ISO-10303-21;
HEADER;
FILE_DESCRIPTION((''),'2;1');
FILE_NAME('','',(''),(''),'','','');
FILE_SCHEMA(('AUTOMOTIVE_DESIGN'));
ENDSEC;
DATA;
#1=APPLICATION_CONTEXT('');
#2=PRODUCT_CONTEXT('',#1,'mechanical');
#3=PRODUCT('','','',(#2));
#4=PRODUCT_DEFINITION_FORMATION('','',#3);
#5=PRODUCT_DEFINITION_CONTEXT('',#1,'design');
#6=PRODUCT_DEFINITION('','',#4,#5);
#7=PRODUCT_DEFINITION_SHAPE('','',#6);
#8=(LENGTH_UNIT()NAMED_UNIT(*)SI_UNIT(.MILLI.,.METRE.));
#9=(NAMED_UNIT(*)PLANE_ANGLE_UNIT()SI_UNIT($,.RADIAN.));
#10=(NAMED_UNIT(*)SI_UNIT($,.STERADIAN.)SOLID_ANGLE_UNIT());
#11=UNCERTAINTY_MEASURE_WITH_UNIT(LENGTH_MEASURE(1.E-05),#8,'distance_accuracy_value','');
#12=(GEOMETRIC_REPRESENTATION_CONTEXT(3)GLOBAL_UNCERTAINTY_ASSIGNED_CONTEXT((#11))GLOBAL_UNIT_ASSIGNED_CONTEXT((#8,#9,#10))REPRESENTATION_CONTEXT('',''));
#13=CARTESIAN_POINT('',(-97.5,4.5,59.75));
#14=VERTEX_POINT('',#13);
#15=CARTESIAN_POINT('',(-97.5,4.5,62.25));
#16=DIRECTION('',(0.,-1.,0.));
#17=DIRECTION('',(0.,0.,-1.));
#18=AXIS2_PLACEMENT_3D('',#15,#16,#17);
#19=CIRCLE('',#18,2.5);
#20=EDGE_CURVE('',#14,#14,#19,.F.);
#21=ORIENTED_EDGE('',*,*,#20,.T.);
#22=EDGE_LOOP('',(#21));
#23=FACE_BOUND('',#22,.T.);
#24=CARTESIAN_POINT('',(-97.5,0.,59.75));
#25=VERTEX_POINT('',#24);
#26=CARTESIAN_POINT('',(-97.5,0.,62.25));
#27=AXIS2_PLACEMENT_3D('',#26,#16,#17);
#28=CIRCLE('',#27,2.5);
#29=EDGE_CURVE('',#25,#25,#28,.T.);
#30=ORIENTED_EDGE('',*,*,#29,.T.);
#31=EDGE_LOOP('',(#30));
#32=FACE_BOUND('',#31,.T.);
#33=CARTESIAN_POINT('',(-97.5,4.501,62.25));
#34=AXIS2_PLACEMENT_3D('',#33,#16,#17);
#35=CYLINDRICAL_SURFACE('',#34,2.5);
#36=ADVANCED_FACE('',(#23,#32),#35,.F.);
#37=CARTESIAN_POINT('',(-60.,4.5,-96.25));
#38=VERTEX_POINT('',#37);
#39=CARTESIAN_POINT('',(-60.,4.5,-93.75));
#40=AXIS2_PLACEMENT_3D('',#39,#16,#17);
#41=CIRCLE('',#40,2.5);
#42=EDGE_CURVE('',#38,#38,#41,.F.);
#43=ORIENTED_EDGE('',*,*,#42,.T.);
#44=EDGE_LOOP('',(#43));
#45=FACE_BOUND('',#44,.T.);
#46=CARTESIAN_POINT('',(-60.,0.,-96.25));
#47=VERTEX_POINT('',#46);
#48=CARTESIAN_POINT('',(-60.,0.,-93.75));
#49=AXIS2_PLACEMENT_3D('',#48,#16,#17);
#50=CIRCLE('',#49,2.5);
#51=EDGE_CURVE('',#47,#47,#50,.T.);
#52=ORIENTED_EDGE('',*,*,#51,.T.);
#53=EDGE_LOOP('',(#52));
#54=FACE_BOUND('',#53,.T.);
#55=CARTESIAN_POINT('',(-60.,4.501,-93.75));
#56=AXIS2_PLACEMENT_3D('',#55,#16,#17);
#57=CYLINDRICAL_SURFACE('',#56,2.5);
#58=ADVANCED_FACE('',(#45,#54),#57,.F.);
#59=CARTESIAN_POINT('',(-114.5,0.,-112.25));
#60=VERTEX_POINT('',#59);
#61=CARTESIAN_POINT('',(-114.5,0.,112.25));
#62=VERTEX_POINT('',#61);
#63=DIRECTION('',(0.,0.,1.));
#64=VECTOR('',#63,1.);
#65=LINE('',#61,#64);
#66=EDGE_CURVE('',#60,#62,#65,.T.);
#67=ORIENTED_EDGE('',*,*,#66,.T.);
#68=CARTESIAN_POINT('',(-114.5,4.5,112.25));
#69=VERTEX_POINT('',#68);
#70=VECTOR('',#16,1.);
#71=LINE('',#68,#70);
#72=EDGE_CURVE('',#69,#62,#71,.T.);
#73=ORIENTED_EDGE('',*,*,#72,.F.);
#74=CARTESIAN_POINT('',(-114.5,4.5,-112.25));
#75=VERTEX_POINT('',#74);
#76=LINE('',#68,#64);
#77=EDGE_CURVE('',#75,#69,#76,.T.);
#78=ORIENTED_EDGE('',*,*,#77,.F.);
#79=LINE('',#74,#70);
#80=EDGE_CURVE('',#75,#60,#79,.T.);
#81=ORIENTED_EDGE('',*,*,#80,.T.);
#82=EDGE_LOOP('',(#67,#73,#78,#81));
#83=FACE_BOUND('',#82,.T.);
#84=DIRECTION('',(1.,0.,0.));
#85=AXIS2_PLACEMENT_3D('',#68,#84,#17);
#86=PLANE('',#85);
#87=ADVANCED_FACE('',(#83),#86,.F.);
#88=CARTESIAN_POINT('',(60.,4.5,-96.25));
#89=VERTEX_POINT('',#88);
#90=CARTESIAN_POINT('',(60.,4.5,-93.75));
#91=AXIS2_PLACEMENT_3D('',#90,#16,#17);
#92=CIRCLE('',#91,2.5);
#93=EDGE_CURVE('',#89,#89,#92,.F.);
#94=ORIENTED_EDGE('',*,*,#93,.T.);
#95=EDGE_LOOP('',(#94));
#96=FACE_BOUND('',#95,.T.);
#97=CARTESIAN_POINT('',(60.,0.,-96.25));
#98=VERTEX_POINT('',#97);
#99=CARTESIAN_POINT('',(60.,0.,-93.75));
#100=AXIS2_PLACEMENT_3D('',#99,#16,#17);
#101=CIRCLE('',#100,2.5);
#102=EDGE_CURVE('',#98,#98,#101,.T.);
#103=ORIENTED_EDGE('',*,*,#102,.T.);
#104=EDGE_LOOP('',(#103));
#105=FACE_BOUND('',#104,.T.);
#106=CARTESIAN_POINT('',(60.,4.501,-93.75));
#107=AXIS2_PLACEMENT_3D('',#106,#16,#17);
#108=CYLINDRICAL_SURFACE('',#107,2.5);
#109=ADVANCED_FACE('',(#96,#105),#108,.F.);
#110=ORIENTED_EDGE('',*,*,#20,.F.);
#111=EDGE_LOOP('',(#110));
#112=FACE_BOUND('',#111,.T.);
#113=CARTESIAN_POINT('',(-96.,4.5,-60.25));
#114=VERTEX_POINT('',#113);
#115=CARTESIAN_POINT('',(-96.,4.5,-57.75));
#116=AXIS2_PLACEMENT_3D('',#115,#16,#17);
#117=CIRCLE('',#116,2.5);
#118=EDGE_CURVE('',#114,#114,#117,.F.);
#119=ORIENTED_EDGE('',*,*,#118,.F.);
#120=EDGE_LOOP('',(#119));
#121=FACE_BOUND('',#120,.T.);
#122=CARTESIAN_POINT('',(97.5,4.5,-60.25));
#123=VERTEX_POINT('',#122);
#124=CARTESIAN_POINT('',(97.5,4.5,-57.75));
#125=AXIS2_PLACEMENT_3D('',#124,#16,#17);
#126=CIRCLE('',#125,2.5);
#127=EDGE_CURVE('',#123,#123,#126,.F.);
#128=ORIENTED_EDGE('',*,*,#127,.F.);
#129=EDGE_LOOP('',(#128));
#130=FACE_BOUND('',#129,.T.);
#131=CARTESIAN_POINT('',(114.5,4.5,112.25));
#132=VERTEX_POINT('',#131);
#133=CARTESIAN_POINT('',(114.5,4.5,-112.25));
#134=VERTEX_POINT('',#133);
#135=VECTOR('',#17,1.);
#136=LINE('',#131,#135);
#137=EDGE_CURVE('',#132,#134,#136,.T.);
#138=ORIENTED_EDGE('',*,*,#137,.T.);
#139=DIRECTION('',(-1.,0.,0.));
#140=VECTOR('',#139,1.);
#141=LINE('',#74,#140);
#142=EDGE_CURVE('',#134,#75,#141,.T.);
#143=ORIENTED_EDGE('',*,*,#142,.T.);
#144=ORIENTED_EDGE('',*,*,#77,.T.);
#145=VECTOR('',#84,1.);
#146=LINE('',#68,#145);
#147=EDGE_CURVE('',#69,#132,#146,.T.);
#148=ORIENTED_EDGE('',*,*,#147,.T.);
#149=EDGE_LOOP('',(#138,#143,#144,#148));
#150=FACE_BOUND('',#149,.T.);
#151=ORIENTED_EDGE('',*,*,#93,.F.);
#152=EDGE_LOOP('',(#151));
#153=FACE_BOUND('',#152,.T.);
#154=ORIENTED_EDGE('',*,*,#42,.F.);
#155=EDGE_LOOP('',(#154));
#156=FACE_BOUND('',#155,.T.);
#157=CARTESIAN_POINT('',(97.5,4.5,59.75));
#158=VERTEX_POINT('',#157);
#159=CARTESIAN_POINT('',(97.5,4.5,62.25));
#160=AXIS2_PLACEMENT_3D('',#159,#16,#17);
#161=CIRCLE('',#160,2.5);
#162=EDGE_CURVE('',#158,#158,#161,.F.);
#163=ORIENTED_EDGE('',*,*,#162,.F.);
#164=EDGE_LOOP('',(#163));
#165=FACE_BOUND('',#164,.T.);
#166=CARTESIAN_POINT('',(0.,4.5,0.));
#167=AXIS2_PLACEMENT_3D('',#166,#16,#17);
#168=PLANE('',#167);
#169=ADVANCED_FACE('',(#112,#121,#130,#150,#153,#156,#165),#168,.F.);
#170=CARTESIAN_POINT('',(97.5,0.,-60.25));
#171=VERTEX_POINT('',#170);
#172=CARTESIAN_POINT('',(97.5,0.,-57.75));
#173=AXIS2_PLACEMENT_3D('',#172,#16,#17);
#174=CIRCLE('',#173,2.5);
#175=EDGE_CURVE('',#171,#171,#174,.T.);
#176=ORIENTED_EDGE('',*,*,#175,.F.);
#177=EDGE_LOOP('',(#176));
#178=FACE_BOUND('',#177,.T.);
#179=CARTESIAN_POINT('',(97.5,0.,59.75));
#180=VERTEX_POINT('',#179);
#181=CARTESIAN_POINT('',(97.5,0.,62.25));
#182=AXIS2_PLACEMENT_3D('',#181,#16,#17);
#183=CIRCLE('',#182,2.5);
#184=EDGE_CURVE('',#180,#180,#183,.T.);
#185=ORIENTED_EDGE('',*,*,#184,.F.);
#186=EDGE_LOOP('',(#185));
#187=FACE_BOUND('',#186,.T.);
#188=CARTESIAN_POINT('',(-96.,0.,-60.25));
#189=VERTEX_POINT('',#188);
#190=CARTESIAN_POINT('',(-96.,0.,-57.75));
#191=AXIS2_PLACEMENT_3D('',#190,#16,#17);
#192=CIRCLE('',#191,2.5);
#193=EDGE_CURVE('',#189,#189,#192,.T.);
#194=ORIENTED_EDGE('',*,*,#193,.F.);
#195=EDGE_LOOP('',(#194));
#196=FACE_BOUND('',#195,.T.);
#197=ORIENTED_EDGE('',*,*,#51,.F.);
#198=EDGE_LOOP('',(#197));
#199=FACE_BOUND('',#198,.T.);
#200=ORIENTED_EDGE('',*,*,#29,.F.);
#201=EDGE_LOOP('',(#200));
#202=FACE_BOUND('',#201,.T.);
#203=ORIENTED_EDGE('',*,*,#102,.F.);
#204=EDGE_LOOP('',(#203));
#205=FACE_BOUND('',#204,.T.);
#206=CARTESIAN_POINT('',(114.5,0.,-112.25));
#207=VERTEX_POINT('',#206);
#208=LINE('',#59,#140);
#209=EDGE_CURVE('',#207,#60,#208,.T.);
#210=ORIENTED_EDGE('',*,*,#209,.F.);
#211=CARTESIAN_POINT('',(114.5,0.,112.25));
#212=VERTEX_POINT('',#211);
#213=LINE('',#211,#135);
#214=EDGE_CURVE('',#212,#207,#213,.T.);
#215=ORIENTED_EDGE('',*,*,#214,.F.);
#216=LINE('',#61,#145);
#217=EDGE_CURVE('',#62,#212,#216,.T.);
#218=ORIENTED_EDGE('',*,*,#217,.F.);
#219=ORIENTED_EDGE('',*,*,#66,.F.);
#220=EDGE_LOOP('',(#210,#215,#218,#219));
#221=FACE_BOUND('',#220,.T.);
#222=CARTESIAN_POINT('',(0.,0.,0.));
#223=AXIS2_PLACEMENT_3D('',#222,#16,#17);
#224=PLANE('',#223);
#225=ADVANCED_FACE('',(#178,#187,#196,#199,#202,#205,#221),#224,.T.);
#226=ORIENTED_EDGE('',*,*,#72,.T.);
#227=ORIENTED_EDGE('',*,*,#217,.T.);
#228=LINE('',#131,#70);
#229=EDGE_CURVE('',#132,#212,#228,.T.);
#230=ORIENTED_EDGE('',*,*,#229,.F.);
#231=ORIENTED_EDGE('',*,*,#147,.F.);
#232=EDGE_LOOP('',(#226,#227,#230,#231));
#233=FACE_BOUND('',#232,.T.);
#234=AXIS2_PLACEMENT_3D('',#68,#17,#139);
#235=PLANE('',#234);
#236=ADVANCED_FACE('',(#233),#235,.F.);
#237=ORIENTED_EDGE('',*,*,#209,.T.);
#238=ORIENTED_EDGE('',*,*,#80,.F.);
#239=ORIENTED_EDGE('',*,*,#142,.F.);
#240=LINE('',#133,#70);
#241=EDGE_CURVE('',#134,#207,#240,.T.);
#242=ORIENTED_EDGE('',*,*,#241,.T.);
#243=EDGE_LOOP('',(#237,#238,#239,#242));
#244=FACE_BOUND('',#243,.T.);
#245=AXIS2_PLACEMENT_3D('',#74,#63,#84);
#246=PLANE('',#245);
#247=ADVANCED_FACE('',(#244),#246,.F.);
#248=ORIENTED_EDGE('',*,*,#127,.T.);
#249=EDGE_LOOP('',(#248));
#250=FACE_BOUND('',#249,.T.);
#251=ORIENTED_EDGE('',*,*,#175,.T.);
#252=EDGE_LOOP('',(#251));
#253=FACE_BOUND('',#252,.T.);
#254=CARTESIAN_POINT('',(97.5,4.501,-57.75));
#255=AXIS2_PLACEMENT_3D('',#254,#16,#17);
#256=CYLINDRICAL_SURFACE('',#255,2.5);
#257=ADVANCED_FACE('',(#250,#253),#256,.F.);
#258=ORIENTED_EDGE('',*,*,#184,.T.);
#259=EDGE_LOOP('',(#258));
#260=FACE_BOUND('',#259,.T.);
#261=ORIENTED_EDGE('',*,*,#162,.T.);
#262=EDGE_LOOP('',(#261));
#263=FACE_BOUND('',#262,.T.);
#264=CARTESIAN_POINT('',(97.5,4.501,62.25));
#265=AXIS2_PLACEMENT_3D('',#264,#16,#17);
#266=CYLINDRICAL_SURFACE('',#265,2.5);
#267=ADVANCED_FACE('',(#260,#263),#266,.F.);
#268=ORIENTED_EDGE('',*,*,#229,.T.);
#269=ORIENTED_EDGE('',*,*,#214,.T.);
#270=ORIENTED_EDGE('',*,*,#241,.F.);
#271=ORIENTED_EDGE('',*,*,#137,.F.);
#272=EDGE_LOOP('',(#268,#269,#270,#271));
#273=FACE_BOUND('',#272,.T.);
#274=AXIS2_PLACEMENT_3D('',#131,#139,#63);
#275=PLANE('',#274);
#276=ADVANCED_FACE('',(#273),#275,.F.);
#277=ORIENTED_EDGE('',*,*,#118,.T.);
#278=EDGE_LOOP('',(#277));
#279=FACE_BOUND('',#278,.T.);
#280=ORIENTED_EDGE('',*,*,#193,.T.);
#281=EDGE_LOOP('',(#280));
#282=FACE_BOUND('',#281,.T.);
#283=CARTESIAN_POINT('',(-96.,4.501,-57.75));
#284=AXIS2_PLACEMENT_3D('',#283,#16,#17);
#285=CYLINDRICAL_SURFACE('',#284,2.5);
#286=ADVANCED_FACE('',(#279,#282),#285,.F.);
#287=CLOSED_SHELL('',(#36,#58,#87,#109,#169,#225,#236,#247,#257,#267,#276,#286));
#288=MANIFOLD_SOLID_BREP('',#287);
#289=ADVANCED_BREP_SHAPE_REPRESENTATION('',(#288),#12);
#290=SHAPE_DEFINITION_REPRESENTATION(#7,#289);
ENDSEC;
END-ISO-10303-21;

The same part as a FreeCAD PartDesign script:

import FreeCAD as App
import Part
import Sketcher
Q = App.Units.Quantity


def add_polygon(sketch, points):
    """Adds a closed chain of lines whose ends are joined by coincident constraints."""
    first, n = sketch.GeometryCount, len(points)
    for a, b in zip(points, points[1:] + points[:1]):
        sketch.addGeometry(Part.LineSegment(App.Vector(*a, 0), App.Vector(*b, 0)), False)
    for i in range(n):
        sketch.addConstraint(Sketcher.Constraint("Coincident", first + i, 2, first + (i + 1) % n, 1))

doc = App.newDocument("Part")
params = doc.addObject("Spreadsheet::Sheet", "Params")
for row, (alias, value) in enumerate([
    ("sketch1_width", "229 mm"),
    ("sketch1_height", "224.5 mm"),
    ("pad1_length", "4.5 mm"),
    ("sketch2_diameter", "5 mm"),
    ("sketch3_diameter", "5 mm"),
    ("sketch4_diameter", "5 mm"),
    ("sketch5_diameter", "5 mm"),
    ("sketch6_diameter", "5 mm"),
    ("sketch7_diameter", "5 mm"),
], start=1):
    params.set(f"A{row}", alias)
    params.set(f"B{row}", "=" + value)
    params.setAlias(f"B{row}", alias)

body = doc.addObject("PartDesign::Body", "Body")

sketch1 = body.newObject("Sketcher::SketchObject", "Sketch")
sketch1.AttachmentSupport = (doc.getObject("XZ_Plane"), [""])
sketch1.MapMode = "FlatFace"
add_polygon(sketch1, [(-114, -112), (-114, 112), (114, 112), (114, -112)])
sketch1.addConstraint([
    Sketcher.Constraint("Vertical", 0),
    Sketcher.Constraint("Horizontal", 1),
    Sketcher.Constraint("Vertical", 2),
    Sketcher.Constraint("Horizontal", 3),
    Sketcher.Constraint("Symmetric", 0, 2, 2, 2, -1, 1),
    Sketcher.Constraint("DistanceX", 1, 1, 1, 2, Q("229 mm")),
    Sketcher.Constraint("DistanceY", 0, 1, 0, 2, Q("224.5 mm")),
])
sketch1.setExpression("Constraints[9]", "Params.sketch1_width")
sketch1.setExpression("Constraints[10]", "Params.sketch1_height")
pad1 = body.newObject("PartDesign::Pad", "Pad")
pad1.Profile = sketch1
pad1.setExpression("Length", "Params.pad1_length")
pad1.Reversed = True

sketch2 = body.newObject("Sketcher::SketchObject", "Sketch001")
sketch2.AttachmentSupport = (doc.getObject("XZ_Plane"), [""])
sketch2.MapMode = "FlatFace"
sketch2.addGeometry(Part.Circle(App.Vector(-97.5, 62.2, 0), App.Vector(0, 0, 1), 2.5), False)
sketch2.addConstraint([
    Sketcher.Constraint("Diameter", 0, Q("5 mm")),
    Sketcher.Constraint("DistanceX", 0, 3, -1, 1, Q("97.5 mm")),
    Sketcher.Constraint("DistanceY", -1, 1, 0, 3, Q("62.25 mm")),
])
sketch2.setExpression("Constraints[0]", "Params.sketch2_diameter")
pocket1 = body.newObject("PartDesign::Pocket", "Pocket")
pocket1.Profile = sketch2
pocket1.Type = "UpToFirst"

sketch3 = body.newObject("Sketcher::SketchObject", "Sketch002")
sketch3.AttachmentSupport = (doc.getObject("XZ_Plane"), [""])
sketch3.MapMode = "FlatFace"
sketch3.addGeometry(Part.Circle(App.Vector(-96, -57.8, 0), App.Vector(0, 0, 1), 2.5), False)
sketch3.addConstraint([
    Sketcher.Constraint("Diameter", 0, Q("5 mm")),
    Sketcher.Constraint("DistanceX", 0, 3, -1, 1, Q("96 mm")),
    Sketcher.Constraint("DistanceY", 0, 3, -1, 1, Q("57.75 mm")),
])
sketch3.setExpression("Constraints[0]", "Params.sketch3_diameter")
pocket2 = body.newObject("PartDesign::Pocket", "Pocket001")
pocket2.Profile = sketch3
pocket2.Type = "UpToFirst"

sketch4 = body.newObject("Sketcher::SketchObject", "Sketch003")
sketch4.AttachmentSupport = (doc.getObject("XZ_Plane"), [""])
sketch4.MapMode = "FlatFace"
sketch4.addGeometry(Part.Circle(App.Vector(-60, -93.8, 0), App.Vector(0, 0, 1), 2.5), False)
sketch4.addConstraint([
    Sketcher.Constraint("Diameter", 0, Q("5 mm")),
    Sketcher.Constraint("DistanceX", 0, 3, -1, 1, Q("60 mm")),
    Sketcher.Constraint("DistanceY", 0, 3, -1, 1, Q("93.75 mm")),
])
sketch4.setExpression("Constraints[0]", "Params.sketch4_diameter")
pocket3 = body.newObject("PartDesign::Pocket", "Pocket002")
pocket3.Profile = sketch4
pocket3.Type = "UpToFirst"

sketch5 = body.newObject("Sketcher::SketchObject", "Sketch004")
sketch5.AttachmentSupport = (doc.getObject("XZ_Plane"), [""])
sketch5.MapMode = "FlatFace"
sketch5.addGeometry(Part.Circle(App.Vector(60, -93.8, 0), App.Vector(0, 0, 1), 2.5), False)
sketch5.addConstraint([
    Sketcher.Constraint("Diameter", 0, Q("5 mm")),
    Sketcher.Constraint("DistanceX", -1, 1, 0, 3, Q("60 mm")),
    Sketcher.Constraint("DistanceY", 0, 3, -1, 1, Q("93.75 mm")),
])
sketch5.setExpression("Constraints[0]", "Params.sketch5_diameter")
pocket4 = body.newObject("PartDesign::Pocket", "Pocket003")
pocket4.Profile = sketch5
pocket4.Type = "UpToFirst"

sketch6 = body.newObject("Sketcher::SketchObject", "Sketch005")
sketch6.AttachmentSupport = (doc.getObject("XZ_Plane"), [""])
sketch6.MapMode = "FlatFace"
sketch6.addGeometry(Part.Circle(App.Vector(97.5, 62.2, 0), App.Vector(0, 0, 1), 2.5), False)
sketch6.addConstraint([
    Sketcher.Constraint("Diameter", 0, Q("5 mm")),
    Sketcher.Constraint("DistanceX", -1, 1, 0, 3, Q("97.5 mm")),
    Sketcher.Constraint("DistanceY", -1, 1, 0, 3, Q("62.25 mm")),
])
sketch6.setExpression("Constraints[0]", "Params.sketch6_diameter")
pocket5 = body.newObject("PartDesign::Pocket", "Pocket004")
pocket5.Profile = sketch6
pocket5.Type = "UpToFirst"

sketch7 = body.newObject("Sketcher::SketchObject", "Sketch006")
sketch7.AttachmentSupport = (doc.getObject("XZ_Plane"), [""])
sketch7.MapMode = "FlatFace"
sketch7.addGeometry(Part.Circle(App.Vector(97.5, -57.8, 0), App.Vector(0, 0, 1), 2.5), False)
sketch7.addConstraint([
    Sketcher.Constraint("Diameter", 0, Q("5 mm")),
    Sketcher.Constraint("DistanceX", -1, 1, 0, 3, Q("97.5 mm")),
    Sketcher.Constraint("DistanceY", 0, 3, -1, 1, Q("57.75 mm")),
])
sketch7.setExpression("Constraints[0]", "Params.sketch7_diameter")
pocket6 = body.newObject("PartDesign::Pocket", "Pocket005")
pocket6.Profile = sketch7
pocket6.Type = "UpToFirst"

doc.recompute()
